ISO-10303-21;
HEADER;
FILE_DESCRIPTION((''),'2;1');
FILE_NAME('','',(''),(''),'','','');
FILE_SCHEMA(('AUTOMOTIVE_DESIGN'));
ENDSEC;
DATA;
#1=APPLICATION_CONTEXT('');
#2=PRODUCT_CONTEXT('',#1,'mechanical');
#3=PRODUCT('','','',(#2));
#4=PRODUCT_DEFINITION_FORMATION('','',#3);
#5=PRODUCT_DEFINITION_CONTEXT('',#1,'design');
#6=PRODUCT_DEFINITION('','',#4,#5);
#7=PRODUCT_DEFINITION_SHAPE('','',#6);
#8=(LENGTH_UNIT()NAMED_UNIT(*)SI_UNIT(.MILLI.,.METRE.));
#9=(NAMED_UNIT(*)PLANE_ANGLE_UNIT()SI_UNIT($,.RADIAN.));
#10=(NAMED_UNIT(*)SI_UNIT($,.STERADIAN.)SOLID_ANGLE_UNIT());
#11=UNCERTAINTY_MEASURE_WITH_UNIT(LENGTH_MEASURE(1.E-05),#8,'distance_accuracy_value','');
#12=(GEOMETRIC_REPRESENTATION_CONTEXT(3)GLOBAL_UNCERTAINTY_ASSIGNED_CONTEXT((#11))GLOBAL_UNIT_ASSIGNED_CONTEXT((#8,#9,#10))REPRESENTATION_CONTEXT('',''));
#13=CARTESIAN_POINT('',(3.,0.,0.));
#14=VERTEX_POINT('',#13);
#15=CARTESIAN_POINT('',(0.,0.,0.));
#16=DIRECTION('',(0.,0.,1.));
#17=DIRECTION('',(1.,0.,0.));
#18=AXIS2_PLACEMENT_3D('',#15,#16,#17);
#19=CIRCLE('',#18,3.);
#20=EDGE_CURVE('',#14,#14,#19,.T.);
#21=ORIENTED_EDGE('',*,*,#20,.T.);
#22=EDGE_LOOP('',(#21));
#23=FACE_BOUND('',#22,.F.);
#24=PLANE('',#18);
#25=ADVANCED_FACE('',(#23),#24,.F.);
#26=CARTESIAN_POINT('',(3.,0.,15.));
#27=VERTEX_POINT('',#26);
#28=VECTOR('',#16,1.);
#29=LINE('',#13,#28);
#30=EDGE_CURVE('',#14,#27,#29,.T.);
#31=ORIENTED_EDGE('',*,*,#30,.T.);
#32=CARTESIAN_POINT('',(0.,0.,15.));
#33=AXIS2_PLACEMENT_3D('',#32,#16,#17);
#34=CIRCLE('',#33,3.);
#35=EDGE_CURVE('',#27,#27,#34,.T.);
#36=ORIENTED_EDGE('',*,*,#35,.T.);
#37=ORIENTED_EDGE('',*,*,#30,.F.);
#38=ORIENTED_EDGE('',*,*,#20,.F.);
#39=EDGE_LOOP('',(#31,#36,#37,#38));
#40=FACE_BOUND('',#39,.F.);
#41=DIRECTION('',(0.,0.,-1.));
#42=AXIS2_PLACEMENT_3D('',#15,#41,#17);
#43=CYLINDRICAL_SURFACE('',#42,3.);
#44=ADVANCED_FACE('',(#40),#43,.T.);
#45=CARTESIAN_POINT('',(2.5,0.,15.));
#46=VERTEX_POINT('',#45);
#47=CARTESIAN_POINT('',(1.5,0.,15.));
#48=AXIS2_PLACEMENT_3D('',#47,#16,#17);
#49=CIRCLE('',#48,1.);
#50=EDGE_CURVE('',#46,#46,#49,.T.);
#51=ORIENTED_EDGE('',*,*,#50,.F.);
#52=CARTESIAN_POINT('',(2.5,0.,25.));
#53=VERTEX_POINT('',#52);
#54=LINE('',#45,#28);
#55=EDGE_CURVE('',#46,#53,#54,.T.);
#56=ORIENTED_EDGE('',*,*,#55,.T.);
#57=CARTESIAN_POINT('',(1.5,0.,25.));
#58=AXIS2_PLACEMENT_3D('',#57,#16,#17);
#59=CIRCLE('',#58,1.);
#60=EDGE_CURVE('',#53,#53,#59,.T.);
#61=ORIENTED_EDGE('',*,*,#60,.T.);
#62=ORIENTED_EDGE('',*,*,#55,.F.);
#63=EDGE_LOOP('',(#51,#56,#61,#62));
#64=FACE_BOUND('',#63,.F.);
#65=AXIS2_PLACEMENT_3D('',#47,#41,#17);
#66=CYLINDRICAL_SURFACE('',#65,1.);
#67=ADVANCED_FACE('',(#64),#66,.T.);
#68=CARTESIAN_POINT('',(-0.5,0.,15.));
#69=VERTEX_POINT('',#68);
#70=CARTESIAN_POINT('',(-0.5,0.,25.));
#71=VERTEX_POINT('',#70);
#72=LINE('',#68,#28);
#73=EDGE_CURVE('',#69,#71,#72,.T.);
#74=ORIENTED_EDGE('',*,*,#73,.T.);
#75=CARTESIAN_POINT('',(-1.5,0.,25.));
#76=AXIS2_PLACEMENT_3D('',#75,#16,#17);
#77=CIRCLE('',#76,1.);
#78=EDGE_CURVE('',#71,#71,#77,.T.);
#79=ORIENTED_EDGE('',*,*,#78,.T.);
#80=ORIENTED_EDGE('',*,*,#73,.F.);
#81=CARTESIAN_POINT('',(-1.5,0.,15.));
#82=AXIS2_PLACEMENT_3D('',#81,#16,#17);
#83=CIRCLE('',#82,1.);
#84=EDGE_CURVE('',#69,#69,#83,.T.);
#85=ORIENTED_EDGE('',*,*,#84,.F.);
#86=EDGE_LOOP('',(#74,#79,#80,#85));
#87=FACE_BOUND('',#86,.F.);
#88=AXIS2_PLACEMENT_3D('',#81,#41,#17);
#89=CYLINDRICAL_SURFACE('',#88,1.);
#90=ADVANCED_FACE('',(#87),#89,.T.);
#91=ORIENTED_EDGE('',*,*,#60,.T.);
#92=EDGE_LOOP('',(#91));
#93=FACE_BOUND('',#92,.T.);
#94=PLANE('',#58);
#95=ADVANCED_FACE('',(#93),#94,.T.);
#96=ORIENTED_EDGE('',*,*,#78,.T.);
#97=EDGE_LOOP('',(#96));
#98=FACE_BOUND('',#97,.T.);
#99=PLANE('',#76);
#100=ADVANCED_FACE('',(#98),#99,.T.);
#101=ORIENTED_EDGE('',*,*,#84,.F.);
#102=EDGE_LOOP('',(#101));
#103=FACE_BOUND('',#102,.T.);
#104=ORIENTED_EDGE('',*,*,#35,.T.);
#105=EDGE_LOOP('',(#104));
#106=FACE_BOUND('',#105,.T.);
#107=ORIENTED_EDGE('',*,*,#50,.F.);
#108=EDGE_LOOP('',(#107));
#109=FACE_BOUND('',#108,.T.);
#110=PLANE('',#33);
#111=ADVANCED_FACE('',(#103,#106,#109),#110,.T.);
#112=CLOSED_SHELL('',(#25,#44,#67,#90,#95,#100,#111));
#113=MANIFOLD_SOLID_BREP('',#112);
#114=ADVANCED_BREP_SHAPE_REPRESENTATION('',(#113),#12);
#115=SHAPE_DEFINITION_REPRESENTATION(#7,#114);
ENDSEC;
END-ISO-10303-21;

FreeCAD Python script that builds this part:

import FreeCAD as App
import Part
import Sketcher
from FreeCAD import Vector

doc = App.newDocument("Part")
body = doc.addObject("PartDesign::Body", "Body")

sketch1 = body.newObject("Sketcher::SketchObject", "Sketch")
sketch1.AttachmentSupport = (doc.getObject("XY_Plane"), [""])
sketch1.MapMode = "FlatFace"
sketch1.addGeometry(Part.Circle(Vector(0, 0, 0), Vector(0, 0, 1), 3), False)
sketch1.addConstraint(Sketcher.Constraint("Coincident", 0, 3, -1, 1))
sketch1.addConstraint(Sketcher.Constraint("Diameter", 0, 6.0))
pad1 = body.newObject("PartDesign::Pad", "Pad")
pad1.Profile = sketch1
pad1.Length = 15

sketch2 = body.newObject("Sketcher::SketchObject", "Sketch001")
sketch2.AttachmentSupport = (doc.getObject("XY_Plane"), [""])
sketch2.MapMode = "FlatFace"
sketch2.AttachmentOffset = App.Placement(Vector(0, 0, 15), App.Rotation())
sketch2.addGeometry(Part.Circle(Vector(-1.5, 0, 0), Vector(0, 0, 1), 1), False)
sketch2.addGeometry(Part.Circle(Vector(1.5, 0, 0), Vector(0, 0, 1), 1), False)
sketch2.addConstraint(Sketcher.Constraint("Equal", 0, 1))
sketch2.addConstraint(Sketcher.Constraint("Symmetric", 0, 3, 1, 3, -1, 1))
sketch2.addConstraint(Sketcher.Constraint("PointOnObject", 0, 3, -1))
sketch2.addConstraint(Sketcher.Constraint("Diameter", 0, 2.0))
sketch2.addConstraint(Sketcher.Constraint("DistanceX", 0, 3, 1, 3, 3.0))
pad2 = body.newObject("PartDesign::Pad", "Pad001")
pad2.Profile = sketch2
pad2.Length = 10

doc.recompute()
